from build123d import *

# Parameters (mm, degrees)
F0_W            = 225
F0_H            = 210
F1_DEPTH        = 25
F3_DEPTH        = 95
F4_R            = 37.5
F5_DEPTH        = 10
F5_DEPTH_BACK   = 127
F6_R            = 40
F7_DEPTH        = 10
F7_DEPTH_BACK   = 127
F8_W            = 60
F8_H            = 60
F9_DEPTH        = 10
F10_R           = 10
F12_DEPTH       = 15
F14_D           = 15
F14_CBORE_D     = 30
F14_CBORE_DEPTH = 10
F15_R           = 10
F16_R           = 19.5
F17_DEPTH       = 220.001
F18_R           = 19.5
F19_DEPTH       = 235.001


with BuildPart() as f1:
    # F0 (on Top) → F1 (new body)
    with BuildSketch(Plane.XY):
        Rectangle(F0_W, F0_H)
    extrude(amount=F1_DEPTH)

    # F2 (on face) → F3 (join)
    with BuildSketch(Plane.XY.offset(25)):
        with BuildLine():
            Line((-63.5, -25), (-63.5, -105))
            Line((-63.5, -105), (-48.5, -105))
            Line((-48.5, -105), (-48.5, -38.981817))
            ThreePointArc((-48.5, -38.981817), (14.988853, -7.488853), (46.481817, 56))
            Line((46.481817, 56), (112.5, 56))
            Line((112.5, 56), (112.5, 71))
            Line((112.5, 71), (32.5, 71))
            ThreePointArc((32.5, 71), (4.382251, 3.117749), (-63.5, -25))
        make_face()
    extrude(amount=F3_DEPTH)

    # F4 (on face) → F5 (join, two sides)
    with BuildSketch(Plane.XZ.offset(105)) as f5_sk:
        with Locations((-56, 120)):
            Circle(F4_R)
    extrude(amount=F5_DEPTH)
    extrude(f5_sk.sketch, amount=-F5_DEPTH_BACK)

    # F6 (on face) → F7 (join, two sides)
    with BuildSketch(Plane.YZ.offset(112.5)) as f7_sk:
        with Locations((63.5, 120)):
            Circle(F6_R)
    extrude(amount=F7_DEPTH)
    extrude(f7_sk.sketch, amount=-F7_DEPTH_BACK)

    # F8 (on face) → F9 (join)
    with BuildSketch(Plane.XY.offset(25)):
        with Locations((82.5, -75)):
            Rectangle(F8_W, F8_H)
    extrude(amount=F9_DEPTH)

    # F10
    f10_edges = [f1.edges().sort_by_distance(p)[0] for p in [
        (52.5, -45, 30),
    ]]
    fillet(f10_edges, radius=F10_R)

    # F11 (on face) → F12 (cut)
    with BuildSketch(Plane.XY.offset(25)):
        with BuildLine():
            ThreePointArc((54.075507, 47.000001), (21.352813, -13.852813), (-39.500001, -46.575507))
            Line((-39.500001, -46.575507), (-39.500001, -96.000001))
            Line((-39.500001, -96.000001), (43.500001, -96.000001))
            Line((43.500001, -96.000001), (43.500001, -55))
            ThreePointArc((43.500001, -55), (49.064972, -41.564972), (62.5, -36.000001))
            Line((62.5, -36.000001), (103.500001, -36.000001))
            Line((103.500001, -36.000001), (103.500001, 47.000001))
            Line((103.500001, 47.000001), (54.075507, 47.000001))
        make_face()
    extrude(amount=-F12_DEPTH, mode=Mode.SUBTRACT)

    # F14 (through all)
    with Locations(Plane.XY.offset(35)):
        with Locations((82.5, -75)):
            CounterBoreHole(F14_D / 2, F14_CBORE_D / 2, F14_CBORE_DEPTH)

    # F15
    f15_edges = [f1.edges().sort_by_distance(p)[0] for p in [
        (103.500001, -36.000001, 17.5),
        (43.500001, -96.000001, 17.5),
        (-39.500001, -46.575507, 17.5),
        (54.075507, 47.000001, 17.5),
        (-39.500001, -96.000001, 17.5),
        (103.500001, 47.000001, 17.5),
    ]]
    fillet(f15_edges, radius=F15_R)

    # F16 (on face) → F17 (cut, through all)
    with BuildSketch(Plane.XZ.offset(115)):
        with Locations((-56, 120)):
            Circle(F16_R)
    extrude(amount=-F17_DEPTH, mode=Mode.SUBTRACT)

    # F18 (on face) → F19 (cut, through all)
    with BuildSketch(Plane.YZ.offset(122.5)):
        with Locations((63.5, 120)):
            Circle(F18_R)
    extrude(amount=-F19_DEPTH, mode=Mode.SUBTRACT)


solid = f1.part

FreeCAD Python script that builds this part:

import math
import FreeCAD as App
import Part
import Sketcher
Q = App.Units.Quantity


def edges_at(feature, points):
    """Names of the edges that pass closest to the given points."""
    edges = feature.Shape.Edges
    near = lambda p: min(range(len(edges)), key=lambda i: edges[i].distToShape(Part.Vertex(*p))[0])
    return sorted({f"Edge{near(p) + 1}" for p in points})

doc = App.newDocument("Part")
body = doc.addObject("PartDesign::Body", "Body")

# Sketch on XY plane
sketch1 = body.newObject("Sketcher::SketchObject", "Sketch")
sketch1.AttachmentSupport = (doc.getObject("XY_Plane"), [""])
sketch1.MapMode = "FlatFace"
sketch1.addGeometry([
    Part.LineSegment(App.Vector(-112, 105, 0), App.Vector(-112, -105, 0)),
    Part.LineSegment(App.Vector(-112, -105, 0), App.Vector(112, -105, 0)),
    Part.LineSegment(App.Vector(112, -105, 0), App.Vector(112, 105, 0)),
    Part.LineSegment(App.Vector(112, 105, 0), App.Vector(-112, 105, 0)),
], False)
sketch1.addConstraint([
    Sketcher.Constraint("Coincident", 0, 2, 1, 1),
    Sketcher.Constraint("Coincident", 1, 2, 2, 1),
    Sketcher.Constraint("Coincident", 2, 2, 3, 1),
    Sketcher.Constraint("Coincident", 3, 2, 0, 1),
    Sketcher.Constraint("Vertical", 0),
    Sketcher.Constraint("Horizontal", 1),
    Sketcher.Constraint("Vertical", 2),
    Sketcher.Constraint("Horizontal", 3),
    Sketcher.Constraint("Symmetric", 0, 2, 2, 2, -1, 1),
    Sketcher.Constraint("DistanceX", 1, 1, 1, 2, Q("225 mm")),
    Sketcher.Constraint("DistanceY", 0, 2, 0, 1, Q("210 mm")),
])
pad1 = body.newObject("PartDesign::Pad", "Pad")
pad1.Profile = sketch1
pad1.Length = 25

# Sketch on XY plane
sketch2 = body.newObject("Sketcher::SketchObject", "Sketch001")
sketch2.AttachmentSupport = (doc.getObject("XY_Plane"), [""])
sketch2.MapMode = "FlatFace"
sketch2.AttachmentOffset = App.Placement(App.Vector(0, 0, 25), App.Rotation())
sketch2.addGeometry([
    Part.LineSegment(App.Vector(-64, -25, 0), App.Vector(-64, -105, 0)),  # 0
    Part.LineSegment(App.Vector(-64, -105, 0), App.Vector(-48, -105, 0)),  # 1
    Part.LineSegment(App.Vector(-48, -105, 0), App.Vector(-48, -39, 0)),  # 2
    Part.ArcOfCircle(Part.Circle(App.Vector(-63, 71, 0), App.Vector(0, 0, 1), 111), math.radians(-82), math.radians(-8)),  # 3
    Part.LineSegment(App.Vector(46, 56, 0), App.Vector(112, 56, 0)),  # 4
    Part.LineSegment(App.Vector(112, 56, 0), App.Vector(112, 71, 0)),  # 5
    Part.LineSegment(App.Vector(112, 71, 0), App.Vector(32, 71, 0)),  # 6
    Part.ArcOfCircle(Part.Circle(App.Vector(-63, 71, 0), App.Vector(0, 0, 1), 96), math.radians(-90), math.radians(0)),  # 7
], False)
sketch2.addConstraint([
    Sketcher.Constraint("Coincident", 0, 2, 1, 1),
    Sketcher.Constraint("Coincident", 1, 2, 2, 1),
    Sketcher.Constraint("Coincident", 2, 2, 3, 1),
    Sketcher.Constraint("Coincident", 3, 2, 4, 1),
    Sketcher.Constraint("Coincident", 4, 2, 5, 1),
    Sketcher.Constraint("Coincident", 5, 2, 6, 1),
    Sketcher.Constraint("Coincident", 6, 2, 7, 2),
    Sketcher.Constraint("Coincident", 7, 1, 0, 1),
    Sketcher.Constraint("Vertical", 0),
    Sketcher.Constraint("Horizontal", 1),
    Sketcher.Constraint("Vertical", 2),
    Sketcher.Constraint("Horizontal", 4),
    Sketcher.Constraint("Vertical", 5),
    Sketcher.Constraint("Horizontal", 6),
    Sketcher.Constraint("Coincident", 7, 3, 3, 3),
    Sketcher.Constraint("Horizontal", 7, 3, 5, 2),
    Sketcher.Constraint("Vertical", 7, 3, 0, 2),
    Sketcher.Constraint("Equal", 6, 0),
    Sketcher.Constraint("Equal", 4, 2),
    Sketcher.Constraint("Radius", 3, Q("111 mm")),
    Sketcher.Constraint("Radius", 7, Q("96 mm")),
    Sketcher.Constraint("DistanceX", 1, 1, 1, 2, Q("15 mm")),
    Sketcher.Constraint("DistanceX", 6, 2, 6, 1, Q("80 mm")),
    Sketcher.Constraint("DistanceY", -1, 1, 3, 3, Q("71 mm")),
    Sketcher.Constraint("DistanceX", 3, 3, -1, 1, Q("63.5 mm")),
])
pad2 = body.newObject("PartDesign::Pad", "Pad001")
pad2.Profile = sketch2
pad2.Length = 95

# Sketch on XZ plane
sketch3 = body.newObject("Sketcher::SketchObject", "Sketch002")
sketch3.AttachmentSupport = (doc.getObject("XZ_Plane"), [""])
sketch3.MapMode = "FlatFace"
sketch3.AttachmentOffset = App.Placement(App.Vector(0, 0, 105), App.Rotation())
sketch3.addGeometry(Part.Circle(App.Vector(-56, 120, 0), App.Vector(0, 0, 1), 38), False)
sketch3.addConstraint([
    Sketcher.Constraint("Diameter", 0, Q("75 mm")),
    Sketcher.Constraint("DistanceX", 0, 3, -1, 1, Q("56 mm")),
    Sketcher.Constraint("DistanceY", -1, 1, 0, 3, Q("120 mm")),
])
pad3 = body.newObject("PartDesign::Pad", "Pad002")
pad3.Profile = sketch3
pad3.Type = "TwoLengths"
pad3.Length = 10
pad3.Length2 = 127

# Sketch on YZ plane
sketch4 = body.newObject("Sketcher::SketchObject", "Sketch003")
sketch4.AttachmentSupport = (doc.getObject("YZ_Plane"), [""])
sketch4.MapMode = "FlatFace"
sketch4.AttachmentOffset = App.Placement(App.Vector(0, 0, 112.5), App.Rotation())
sketch4.addGeometry(Part.Circle(App.Vector(64, 120, 0), App.Vector(0, 0, 1), 40), False)
sketch4.addConstraint([
    Sketcher.Constraint("Diameter", 0, Q("80 mm")),
    Sketcher.Constraint("DistanceY", -1, 1, 0, 3, Q("120 mm")),
    Sketcher.Constraint("DistanceX", -1, 1, 0, 3, Q("63.5 mm")),
])
pad4 = body.newObject("PartDesign::Pad", "Pad003")
pad4.Profile = sketch4
pad4.Type = "TwoLengths"
pad4.Length = 10
pad4.Length2 = 127

# Sketch on XY plane
sketch5 = body.newObject("Sketcher::SketchObject", "Sketch004")
sketch5.AttachmentSupport = (doc.getObject("XY_Plane"), [""])
sketch5.MapMode = "FlatFace"
sketch5.AttachmentOffset = App.Placement(App.Vector(0, 0, 25), App.Rotation())
sketch5.addGeometry([
    Part.LineSegment(App.Vector(52, -45, 0), App.Vector(52, -105, 0)),
    Part.LineSegment(App.Vector(52, -105, 0), App.Vector(112, -105, 0)),
    Part.LineSegment(App.Vector(112, -105, 0), App.Vector(112, -45, 0)),
    Part.LineSegment(App.Vector(112, -45, 0), App.Vector(52, -45, 0)),
], False)
sketch5.addConstraint([
    Sketcher.Constraint("Coincident", 0, 2, 1, 1),
    Sketcher.Constraint("Coincident", 1, 2, 2, 1),
    Sketcher.Constraint("Coincident", 2, 2, 3, 1),
    Sketcher.Constraint("Coincident", 3, 2, 0, 1),
    Sketcher.Constraint("Vertical", 0),
    Sketcher.Constraint("Horizontal", 1),
    Sketcher.Constraint("Vertical", 2),
    Sketcher.Constraint("Horizontal", 3),
    Sketcher.Constraint("Equal", 3, 0),
    Sketcher.Constraint("DistanceX", 1, 1, 1, 2, Q("60 mm")),
    Sketcher.Constraint("DistanceY", 0, 2, -1, 1, Q("105 mm")),
    Sketcher.Constraint("DistanceX", -1, 1, 0, 2, Q("52.5 mm")),
])
pad5 = body.newObject("PartDesign::Pad", "Pad004")
pad5.Profile = sketch5
pad5.Length = 10
doc.recompute()

fillet = body.newObject("PartDesign::Fillet", "Fillet")
fillet.Base = (pad5, edges_at(pad5, [(52.5, -45, 30)]))
fillet.Radius = 10

# Sketch on XY plane
sketch6 = body.newObject("Sketcher::SketchObject", "Sketch005")
sketch6.AttachmentSupport = (doc.getObject("XY_Plane"), [""])
sketch6.MapMode = "FlatFace"
sketch6.AttachmentOffset = App.Placement(App.Vector(0, 0, 25), App.Rotation())
sketch6.addGeometry([
    Part.ArcOfCircle(Part.Circle(App.Vector(-64, 71, 0), App.Vector(0, 0, 1), 120), math.radians(-78), math.radians(-12)),  # 0
    Part.LineSegment(App.Vector(-40, -47, 0), App.Vector(-40, -96, 0)),  # 1
    Part.LineSegment(App.Vector(-40, -96, 0), App.Vector(44, -96, 0)),  # 2
    Part.LineSegment(App.Vector(44, -96, 0), App.Vector(44, -55, 0)),  # 3
    Part.ArcOfCircle(Part.Circle(App.Vector(63, -55, 0), App.Vector(0, 0, 1), 19), math.radians(90), math.radians(180)),  # 4
    Part.LineSegment(App.Vector(62, -36, 0), App.Vector(104, -36, 0)),  # 5
    Part.LineSegment(App.Vector(104, -36, 0), App.Vector(104, 47, 0)),  # 6
    Part.LineSegment(App.Vector(104, 47, 0), App.Vector(54, 47, 0)),  # 7
], False)
sketch6.addConstraint([
    Sketcher.Constraint("Coincident", 0, 1, 1, 1),
    Sketcher.Constraint("Coincident", 1, 2, 2, 1),
    Sketcher.Constraint("Coincident", 2, 2, 3, 1),
    Sketcher.Constraint("Tangent", 3, 2, 4, 2),
    Sketcher.Constraint("Tangent", 4, 1, 5, 1),
    Sketcher.Constraint("Coincident", 5, 2, 6, 1),
    Sketcher.Constraint("Coincident", 6, 2, 7, 1),
    Sketcher.Constraint("Coincident", 7, 2, 0, 2),
    Sketcher.Constraint("Vertical", 1),
    Sketcher.Constraint("Horizontal", 2),
    Sketcher.Constraint("Vertical", 3),
    Sketcher.Constraint("Horizontal", 5),
    Sketcher.Constraint("Vertical", 6),
    Sketcher.Constraint("Horizontal", 7),
    Sketcher.Constraint("Equal", 7, 1),
    Sketcher.Constraint("Equal", 5, 3),
    Sketcher.Constraint("Equal", 2, 6),
    Sketcher.Constraint("Radius", 0, Q("120 mm")),
    Sketcher.Constraint("Radius", 4, Q("18.999999 mm")),
    Sketcher.Constraint("DistanceX", 2, 1, 2, 2, Q("83.000002 mm")),
    Sketcher.Constraint("DistanceX", 5, 1, 5, 2, Q("41.000001 mm")),
    Sketcher.Constraint("DistanceY", -1, 1, 0, 3, Q("71.000001 mm")),
    Sketcher.Constraint("DistanceY", 4, 3, -1, 1, Q("55 mm")),
    Sketcher.Constraint("DistanceX", 0, 3, -1, 1, Q("63.500001 mm")),
])
pocket1 = body.newObject("PartDesign::Pocket", "Pocket")
pocket1.Profile = sketch6
pocket1.Length = 15

# Sketch on XY plane
sketch7 = body.newObject("Sketcher::SketchObject", "Sketch006")
sketch7.AttachmentSupport = (doc.getObject("XY_Plane"), [""])
sketch7.MapMode = "FlatFace"
sketch7.AttachmentOffset = App.Placement(App.Vector(0, 0, 35), App.Rotation())
sketch7.addGeometry(Part.Circle(App.Vector(82, -75, 0), App.Vector(0, 0, 1), 8), False)
sketch7.addConstraint([
    Sketcher.Constraint("Diameter", 0, Q("15 mm")),
    Sketcher.Constraint("DistanceY", 0, 3, -1, 1, Q("75 mm")),
    Sketcher.Constraint("DistanceX", -1, 1, 0, 3, Q("82.5 mm")),
])
doc.recompute()
hole = body.newObject("PartDesign::Hole", "Hole")
hole.Profile = sketch7
hole.ThreadType = "None"
hole.Diameter = 15
hole.DepthType = "ThroughAll"
hole.HoleCutType = "Counterbore"
hole.HoleCutDiameter = 30
hole.HoleCutDepth = 10
doc.recompute()

fillet2 = body.newObject("PartDesign::Fillet", "Fillet001")
fillet2.Base = (hole, edges_at(hole, [
    (103.5, -36, 17.5),
    (43.5, -96, 17.5),
    (-39.5, -46.576, 17.5),
    (54.076, 47, 17.5),
    (-39.5, -96, 17.5),
    (103.5, 47, 17.5),
]))
fillet2.Radius = 10

# Sketch on XZ plane
sketch8 = body.newObject("Sketcher::SketchObject", "Sketch007")
sketch8.AttachmentSupport = (doc.getObject("XZ_Plane"), [""])
sketch8.MapMode = "FlatFace"
sketch8.AttachmentOffset = App.Placement(App.Vector(0, 0, 115), App.Rotation())
sketch8.addGeometry(Part.Circle(App.Vector(-56, 120, 0), App.Vector(0, 0, 1), 20), False)
sketch8.addConstraint([
    Sketcher.Constraint("Diameter", 0, Q("39 mm")),
    Sketcher.Constraint("DistanceX", 0, 3, -1, 1, Q("56 mm")),
    Sketcher.Constraint("DistanceY", -1, 1, 0, 3, Q("120 mm")),
])
pocket2 = body.newObject("PartDesign::Pocket", "Pocket001")
pocket2.Profile = sketch8
pocket2.Type = "ThroughAll"

# Sketch on YZ plane
sketch9 = body.newObject("Sketcher::SketchObject", "Sketch008")
sketch9.AttachmentSupport = (doc.getObject("YZ_Plane"), [""])
sketch9.MapMode = "FlatFace"
sketch9.AttachmentOffset = App.Placement(App.Vector(0, 0, 122.5), App.Rotation())
sketch9.addGeometry(Part.Circle(App.Vector(64, 120, 0), App.Vector(0, 0, 1), 20), False)
sketch9.addConstraint([
    Sketcher.Constraint("Diameter", 0, Q("39 mm")),
    Sketcher.Constraint("DistanceY", -1, 1, 0, 3, Q("120 mm")),
    Sketcher.Constraint("DistanceX", -1, 1, 0, 3, Q("63.5 mm")),
])
pocket3 = body.newObject("PartDesign::Pocket", "Pocket002")
pocket3.Profile = sketch9
pocket3.Type = "ThroughAll"

doc.recompute()
